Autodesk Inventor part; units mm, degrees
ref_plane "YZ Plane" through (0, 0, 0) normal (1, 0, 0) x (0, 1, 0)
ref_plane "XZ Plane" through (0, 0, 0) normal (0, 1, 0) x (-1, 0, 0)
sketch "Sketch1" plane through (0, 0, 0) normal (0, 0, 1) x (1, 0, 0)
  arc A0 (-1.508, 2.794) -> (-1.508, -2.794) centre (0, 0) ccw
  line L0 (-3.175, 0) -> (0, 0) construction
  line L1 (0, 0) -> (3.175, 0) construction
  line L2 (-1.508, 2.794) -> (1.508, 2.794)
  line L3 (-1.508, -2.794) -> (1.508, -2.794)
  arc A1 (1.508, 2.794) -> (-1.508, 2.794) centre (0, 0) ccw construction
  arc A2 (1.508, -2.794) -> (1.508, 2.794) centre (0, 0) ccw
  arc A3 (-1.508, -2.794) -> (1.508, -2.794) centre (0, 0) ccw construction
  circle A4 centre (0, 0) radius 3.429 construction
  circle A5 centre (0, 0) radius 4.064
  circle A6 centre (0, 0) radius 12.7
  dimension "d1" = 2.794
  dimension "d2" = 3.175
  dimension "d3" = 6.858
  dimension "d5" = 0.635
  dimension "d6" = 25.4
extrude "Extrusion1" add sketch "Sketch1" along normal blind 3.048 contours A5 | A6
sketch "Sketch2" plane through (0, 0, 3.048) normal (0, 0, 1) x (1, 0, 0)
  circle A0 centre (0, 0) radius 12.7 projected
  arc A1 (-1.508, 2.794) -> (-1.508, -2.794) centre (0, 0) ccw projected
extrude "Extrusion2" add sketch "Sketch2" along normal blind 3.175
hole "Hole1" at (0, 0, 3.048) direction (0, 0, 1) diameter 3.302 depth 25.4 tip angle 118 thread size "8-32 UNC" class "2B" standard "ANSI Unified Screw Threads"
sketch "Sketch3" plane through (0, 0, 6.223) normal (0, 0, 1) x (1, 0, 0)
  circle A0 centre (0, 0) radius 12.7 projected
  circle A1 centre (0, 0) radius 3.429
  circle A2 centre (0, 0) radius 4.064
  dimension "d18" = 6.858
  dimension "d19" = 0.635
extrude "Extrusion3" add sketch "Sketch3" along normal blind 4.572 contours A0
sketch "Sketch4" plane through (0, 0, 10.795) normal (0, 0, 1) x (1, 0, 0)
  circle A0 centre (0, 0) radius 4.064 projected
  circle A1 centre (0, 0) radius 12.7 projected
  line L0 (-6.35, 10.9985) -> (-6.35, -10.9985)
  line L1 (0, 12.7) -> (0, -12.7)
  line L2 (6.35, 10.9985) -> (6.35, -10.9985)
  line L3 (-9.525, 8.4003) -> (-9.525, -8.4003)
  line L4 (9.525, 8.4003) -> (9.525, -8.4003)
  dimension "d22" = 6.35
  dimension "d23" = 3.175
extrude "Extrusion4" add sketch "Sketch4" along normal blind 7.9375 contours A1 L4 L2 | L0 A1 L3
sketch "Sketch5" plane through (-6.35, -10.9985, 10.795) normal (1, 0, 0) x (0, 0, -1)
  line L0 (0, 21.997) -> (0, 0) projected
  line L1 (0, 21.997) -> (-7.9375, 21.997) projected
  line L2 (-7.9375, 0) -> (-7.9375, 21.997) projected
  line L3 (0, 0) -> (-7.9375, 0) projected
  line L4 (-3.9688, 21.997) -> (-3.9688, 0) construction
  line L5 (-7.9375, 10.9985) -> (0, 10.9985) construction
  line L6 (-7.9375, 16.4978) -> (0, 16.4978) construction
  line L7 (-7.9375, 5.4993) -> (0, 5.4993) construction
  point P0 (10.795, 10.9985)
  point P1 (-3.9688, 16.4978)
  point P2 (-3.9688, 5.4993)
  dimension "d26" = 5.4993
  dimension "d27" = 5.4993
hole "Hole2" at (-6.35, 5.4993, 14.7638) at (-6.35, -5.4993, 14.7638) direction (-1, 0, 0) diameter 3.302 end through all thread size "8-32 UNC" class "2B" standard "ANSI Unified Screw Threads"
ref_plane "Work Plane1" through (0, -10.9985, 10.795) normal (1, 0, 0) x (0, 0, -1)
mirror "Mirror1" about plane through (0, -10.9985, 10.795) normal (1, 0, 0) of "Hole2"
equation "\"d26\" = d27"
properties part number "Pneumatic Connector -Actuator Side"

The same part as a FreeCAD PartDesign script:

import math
import FreeCAD as App
import Part
import Sketcher
Q = App.Units.Quantity

doc = App.newDocument("Part")
body = doc.addObject("PartDesign::Body", "Body")

sketch1 = body.newObject("Sketcher::SketchObject", "Sketch")
sketch1.AttachmentSupport = (doc.getObject("XY_Plane"), [""])
sketch1.MapMode = "FlatFace"
sketch1.addGeometry([
    Part.Circle(App.Vector(0, 0, 0), App.Vector(0, 0, 1), 12.7),
    Part.ArcOfCircle(Part.Circle(App.Vector(0, 0, 0), App.Vector(0, 0, 1), 3.17498), math.radians(118.356978), math.radians(241.643022)),
    Part.LineSegment(App.Vector(-1.508, 2.794, 0), App.Vector(1.508, 2.794, 0)),
    Part.ArcOfCircle(Part.Circle(App.Vector(0, 0, 0), App.Vector(0, 0, 1), 3.17498), math.radians(-61.643022), math.radians(61.643022)),
    Part.LineSegment(App.Vector(1.508, -2.794, 0), App.Vector(-1.508, -2.794, 0)),
], False)
sketch1.addConstraint([
    Sketcher.Constraint("Coincident", 1, 1, 2, 1),
    Sketcher.Constraint("Coincident", 2, 2, 3, 2),
    Sketcher.Constraint("Coincident", 3, 1, 4, 1),
    Sketcher.Constraint("Coincident", 4, 2, 1, 2),
    Sketcher.Constraint("Horizontal", 2),
    Sketcher.Constraint("Horizontal", 4),
    Sketcher.Constraint("Coincident", 0, 3, -1, 1),
    Sketcher.Constraint("Coincident", 1, 3, -1, 1),
    Sketcher.Constraint("Coincident", 3, 3, -1, 1),
    Sketcher.Constraint("Equal", 1, 3),
    Sketcher.Constraint("Vertical", 2, 2, 3, 1),
    Sketcher.Constraint("Diameter", 0, Q("1 in")),
    Sketcher.Constraint("Radius", 1, Q("0.125 in")),
    Sketcher.Constraint("DistanceY", -1, 1, 1, 1, Q("0.11 in")),
])
pad1 = body.newObject("PartDesign::Pad", "Pad")
pad1.Profile = sketch1
pad1.Length = Q("0.12 in")

sketch2 = body.newObject("Sketcher::SketchObject", "Sketch001")
sketch2.AttachmentSupport = (doc.getObject("XY_Plane"), [""])
sketch2.MapMode = "FlatFace"
sketch2.AttachmentOffset = App.Placement(App.Vector(0, 0, 0.12 * 25.4), App.Rotation())
sketch2.addGeometry(Part.Circle(App.Vector(0, 0, 0), App.Vector(0, 0, 1), 12.7), False)
sketch2.addConstraint([
    Sketcher.Constraint("Coincident", 0, 3, -1, 1),
    Sketcher.Constraint("Diameter", 0, Q("1 in")),
])
pad2 = body.newObject("PartDesign::Pad", "Pad001")
pad2.Profile = sketch2
pad2.Length = Q("0.125 in")

sketch3 = body.newObject("Sketcher::SketchObject", "Sketch002")
sketch3.AttachmentSupport = (doc.getObject("XY_Plane"), [""])
sketch3.MapMode = "FlatFace"
sketch3.AttachmentOffset = App.Placement(App.Vector(0, 0, 0.12 * 25.4), App.Rotation())
sketch3.addGeometry(Part.Circle(App.Vector(0, 0, 0), App.Vector(0, 0, 1), 1.651), False)
sketch3.addConstraint([
    Sketcher.Constraint("Coincident", 0, 3, -1, 1),
    Sketcher.Constraint("Diameter", 0, Q("0.13 in")),
])
doc.recompute()
hole = body.newObject("PartDesign::Hole", "Hole")
hole.Profile = sketch3
hole.ThreadType = "None"
hole.Diameter = Q("0.13 in")
hole.DepthType = "Dimension"
hole.Depth = Q("1 in")
hole.DrillPoint = "Angled"
hole.DrillPointAngle = 118
hole.Reversed = True

sketch4 = body.newObject("Sketcher::SketchObject", "Sketch003")
sketch4.AttachmentSupport = (doc.getObject("XY_Plane"), [""])
sketch4.MapMode = "FlatFace"
sketch4.AttachmentOffset = App.Placement(App.Vector(0, 0, 0.245 * 25.4), App.Rotation())
sketch4.addGeometry([
    Part.Circle(App.Vector(0, 0, 0), App.Vector(0, 0, 1), 12.7),
    Part.Circle(App.Vector(0, 0, 0), App.Vector(0, 0, 1), 4.064),
], False)
sketch4.addConstraint([
    Sketcher.Constraint("Coincident", 0, 3, -1, 1),
    Sketcher.Constraint("Coincident", 1, 3, -1, 1),
    Sketcher.Constraint("Diameter", 0, Q("1 in")),
    Sketcher.Constraint("Diameter", 1, Q("0.32 in")),
])
pad3 = body.newObject("PartDesign::Pad", "Pad002")
pad3.Profile = sketch4
pad3.Length = Q("0.18 in")

sketch5 = body.newObject("Sketcher::SketchObject", "Sketch004")
sketch5.AttachmentSupport = (doc.getObject("XY_Plane"), [""])
sketch5.MapMode = "FlatFace"
sketch5.AttachmentOffset = App.Placement(App.Vector(0, 0, 0.425 * 25.4), App.Rotation())
sketch5.addGeometry([
    Part.ArcOfCircle(Part.Circle(App.Vector(0, 0, 0), App.Vector(0, 0, 1), 12.7), math.radians(41.409756), math.radians(59.999949)),
    Part.LineSegment(App.Vector(6.35, 10.9985, 0), App.Vector(6.35, -10.9985, 0)),
    Part.ArcOfCircle(Part.Circle(App.Vector(0, 0, 0), App.Vector(0, 0, 1), 12.7), math.radians(-59.999949), math.radians(-41.409756)),
    Part.LineSegment(App.Vector(9.525, -8.4003, 0), App.Vector(9.525, 8.4003, 0)),
    Part.LineSegment(App.Vector(-6.35, -10.9985, 0), App.Vector(-6.35, 10.9985, 0)),
    Part.ArcOfCircle(Part.Circle(App.Vector(0, 0, 0), App.Vector(0, 0, 1), 12.7), math.radians(120.000051), math.radians(138.590244)),
    Part.LineSegment(App.Vector(-9.525, 8.4003, 0), App.Vector(-9.525, -8.4003, 0)),
    Part.ArcOfCircle(Part.Circle(App.Vector(0, 0, 0), App.Vector(0, 0, 1), 12.7), math.radians(-138.590244), math.radians(-120.000051)),
], False)
sketch5.addConstraint([
    Sketcher.Constraint("Coincident", 0, 2, 1, 1),
    Sketcher.Constraint("Coincident", 1, 2, 2, 1),
    Sketcher.Constraint("Coincident", 2, 2, 3, 1),
    Sketcher.Constraint("Coincident", 3, 2, 0, 1),
    Sketcher.Constraint("Coincident", 4, 2, 5, 1),
    Sketcher.Constraint("Coincident", 5, 2, 6, 1),
    Sketcher.Constraint("Coincident", 6, 2, 7, 1),
    Sketcher.Constraint("Coincident", 7, 2, 4, 1),
    Sketcher.Constraint("Vertical", 1),
    Sketcher.Constraint("Vertical", 3),
    Sketcher.Constraint("Vertical", 4),
    Sketcher.Constraint("Vertical", 6),
    Sketcher.Constraint("Coincident", 0, 3, -1, 1),
    Sketcher.Constraint("Coincident", 2, 3, -1, 1),
    Sketcher.Constraint("Coincident", 5, 3, -1, 1),
    Sketcher.Constraint("Coincident", 7, 3, -1, 1),
    Sketcher.Constraint("Equal", 0, 2),
    Sketcher.Constraint("Equal", 2, 5),
    Sketcher.Constraint("Equal", 5, 7),
    Sketcher.Constraint("Horizontal", 0, 2, 4, 2),
    Sketcher.Constraint("Horizontal", 3, 2, 5, 2),
    Sketcher.Constraint("Radius", 0, Q("0.5 in")),
    Sketcher.Constraint("DistanceX", -1, 1, 0, 2, Q("0.25 in")),
    Sketcher.Constraint("DistanceX", 1, 2, 2, 2, Q("0.125 in")),
])
pad4 = body.newObject("PartDesign::Pad", "Pad003")
pad4.Profile = sketch5
pad4.Length = Q("0.3125 in")

sketch6 = body.newObject("Sketcher::SketchObject", "Sketch005")
sketch6.AttachmentSupport = (doc.getObject("YZ_Plane"), [""])
sketch6.MapMode = "FlatFace"
sketch6.AttachmentOffset = App.Placement(App.Vector(0, 0, -0.25 * 25.4), App.Rotation())
sketch6.addGeometry([
    Part.Circle(App.Vector(5.4993, 14.7638, 0), App.Vector(0, 0, 1), 1.651),
    Part.Circle(App.Vector(-5.4993, 14.7638, 0), App.Vector(0, 0, 1), 1.651),
], False)
sketch6.addConstraint([
    Sketcher.Constraint("Equal", 0, 1),
    Sketcher.Constraint("Symmetric", 0, 3, 1, 3, -2),
    Sketcher.Constraint("Diameter", 0, Q("0.13 in")),
    Sketcher.Constraint("DistanceX", -1, 1, 0, 3, Q("0.2165 in")),
    Sketcher.Constraint("DistanceY", -1, 1, 0, 3, 14.7638),
])
doc.recompute()
hole2 = body.newObject("PartDesign::Hole", "Hole001")
hole2.Profile = sketch6
hole2.ThreadType = "None"
hole2.Diameter = Q("0.13 in")
hole2.DepthType = "ThroughAll"
doc.recompute()

mirrored = body.newObject("PartDesign::Mirrored", "Mirrored")
mirrored.Originals = [hole2]
mirrored.MirrorPlane = (doc.getObject("YZ_Plane"), [""])
body.Tip = mirrored

doc.recompute()
